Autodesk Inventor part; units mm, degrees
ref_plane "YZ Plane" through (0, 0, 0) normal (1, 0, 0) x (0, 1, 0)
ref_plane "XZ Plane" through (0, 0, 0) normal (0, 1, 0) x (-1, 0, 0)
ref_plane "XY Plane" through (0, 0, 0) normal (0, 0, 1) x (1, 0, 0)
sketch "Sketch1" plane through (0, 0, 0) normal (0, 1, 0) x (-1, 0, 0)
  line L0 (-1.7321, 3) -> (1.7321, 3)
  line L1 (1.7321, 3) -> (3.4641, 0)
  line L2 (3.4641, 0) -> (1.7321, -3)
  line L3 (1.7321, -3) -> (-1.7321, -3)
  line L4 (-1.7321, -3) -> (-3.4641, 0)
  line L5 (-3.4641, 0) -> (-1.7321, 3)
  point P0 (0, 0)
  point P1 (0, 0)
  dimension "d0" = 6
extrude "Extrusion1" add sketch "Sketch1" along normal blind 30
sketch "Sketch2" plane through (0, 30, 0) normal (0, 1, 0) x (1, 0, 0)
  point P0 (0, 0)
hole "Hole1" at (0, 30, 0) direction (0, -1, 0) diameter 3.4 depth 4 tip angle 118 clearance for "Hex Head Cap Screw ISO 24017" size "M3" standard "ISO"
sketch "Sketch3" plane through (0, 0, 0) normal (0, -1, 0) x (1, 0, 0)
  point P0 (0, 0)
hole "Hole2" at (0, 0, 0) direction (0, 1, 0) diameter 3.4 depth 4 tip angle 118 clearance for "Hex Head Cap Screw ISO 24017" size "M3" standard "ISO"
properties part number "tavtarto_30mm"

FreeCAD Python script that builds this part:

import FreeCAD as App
import Part
import Sketcher
from FreeCAD import Vector
Q = App.Units.Quantity


def add_polygon(sketch, points):
    """Adds a closed chain of lines whose ends are joined by coincident constraints."""
    first, n = sketch.GeometryCount, len(points)
    for a, b in zip(points, points[1:] + points[:1]):
        sketch.addGeometry(Part.LineSegment(App.Vector(*a, 0), App.Vector(*b, 0)), False)
    for i in range(n):
        sketch.addConstraint(Sketcher.Constraint("Coincident", first + i, 2, first + (i + 1) % n, 1))

doc = App.newDocument("Part")
body = doc.addObject("PartDesign::Body", "Body")

# Sketch on XZ plane
sketch1 = body.newObject("Sketcher::SketchObject", "Sketch")
sketch1.AttachmentSupport = (doc.getObject("XZ_Plane"), [""])
sketch1.MapMode = "FlatFace"
add_polygon(sketch1, [(-1.7321, 3), (1.7321, 3), (3.4641, 0), (1.7321, -3), (-1.7321, -3), (-3.4641, 0)])  # lines 0-5
sketch1.addConstraint([
    Sketcher.Constraint("Horizontal", 0),
    Sketcher.Constraint("Horizontal", 3),
    Sketcher.Constraint("Symmetric", 0, 2, 3, 2, -1, 1),
    Sketcher.Constraint("Symmetric", 1, 2, 4, 2, -1, 1),
    Sketcher.Constraint("PointOnObject", 1, 2, -1),
    Sketcher.Constraint("Parallel", 2, 5),
    Sketcher.Constraint("Vertical", 0, 2, 2, 2),
    Sketcher.Constraint("DistanceY", 2, 2, 0, 2, 6.0),
    Sketcher.Constraint("Angle", 1, Q("-60.0007 deg")),
    Sketcher.Constraint("DistanceX", 0, 1, 0, 2, 3.4642),
])
pad1 = body.newObject("PartDesign::Pad", "Pad")
pad1.Profile = sketch1
pad1.Length = 30
pad1.Reversed = True

# Sketch on XZ plane
sketch2 = body.newObject("Sketcher::SketchObject", "Sketch001")
sketch2.AttachmentSupport = (doc.getObject("XZ_Plane"), [""])
sketch2.MapMode = "FlatFace"
sketch2.AttachmentOffset = App.Placement(Vector(0, 0, -30), App.Rotation())
sketch2.addGeometry(Part.Circle(Vector(0, 0, 0), Vector(0, 0, 1), 1.7), False)
sketch2.addConstraint([
    Sketcher.Constraint("Coincident", 0, 3, -1, 1),
    Sketcher.Constraint("Diameter", 0, 3.4),
])
doc.recompute()
hole = body.newObject("PartDesign::Hole", "Hole")
hole.Profile = sketch2
hole.ThreadType = "None"
hole.Diameter = 3.4
hole.DepthType = "Dimension"
hole.Depth = 4
hole.DrillPoint = "Angled"
hole.DrillPointAngle = 118
hole.Reversed = True

# Sketch on XZ plane
sketch3 = body.newObject("Sketcher::SketchObject", "Sketch002")
sketch3.AttachmentSupport = (doc.getObject("XZ_Plane"), [""])
sketch3.MapMode = "FlatFace"
sketch3.addGeometry(Part.Circle(Vector(0, 0, 0), Vector(0, 0, 1), 1.7), False)
sketch3.addConstraint([
    Sketcher.Constraint("Coincident", 0, 3, -1, 1),
    Sketcher.Constraint("Diameter", 0, 3.4),
])
doc.recompute()
hole2 = body.newObject("PartDesign::Hole", "Hole001")
hole2.Profile = sketch3
hole2.ThreadType = "None"
hole2.Diameter = 3.4
hole2.DepthType = "Dimension"
hole2.Depth = 4
hole2.DrillPoint = "Angled"
hole2.DrillPointAngle = 118

doc.recompute()
